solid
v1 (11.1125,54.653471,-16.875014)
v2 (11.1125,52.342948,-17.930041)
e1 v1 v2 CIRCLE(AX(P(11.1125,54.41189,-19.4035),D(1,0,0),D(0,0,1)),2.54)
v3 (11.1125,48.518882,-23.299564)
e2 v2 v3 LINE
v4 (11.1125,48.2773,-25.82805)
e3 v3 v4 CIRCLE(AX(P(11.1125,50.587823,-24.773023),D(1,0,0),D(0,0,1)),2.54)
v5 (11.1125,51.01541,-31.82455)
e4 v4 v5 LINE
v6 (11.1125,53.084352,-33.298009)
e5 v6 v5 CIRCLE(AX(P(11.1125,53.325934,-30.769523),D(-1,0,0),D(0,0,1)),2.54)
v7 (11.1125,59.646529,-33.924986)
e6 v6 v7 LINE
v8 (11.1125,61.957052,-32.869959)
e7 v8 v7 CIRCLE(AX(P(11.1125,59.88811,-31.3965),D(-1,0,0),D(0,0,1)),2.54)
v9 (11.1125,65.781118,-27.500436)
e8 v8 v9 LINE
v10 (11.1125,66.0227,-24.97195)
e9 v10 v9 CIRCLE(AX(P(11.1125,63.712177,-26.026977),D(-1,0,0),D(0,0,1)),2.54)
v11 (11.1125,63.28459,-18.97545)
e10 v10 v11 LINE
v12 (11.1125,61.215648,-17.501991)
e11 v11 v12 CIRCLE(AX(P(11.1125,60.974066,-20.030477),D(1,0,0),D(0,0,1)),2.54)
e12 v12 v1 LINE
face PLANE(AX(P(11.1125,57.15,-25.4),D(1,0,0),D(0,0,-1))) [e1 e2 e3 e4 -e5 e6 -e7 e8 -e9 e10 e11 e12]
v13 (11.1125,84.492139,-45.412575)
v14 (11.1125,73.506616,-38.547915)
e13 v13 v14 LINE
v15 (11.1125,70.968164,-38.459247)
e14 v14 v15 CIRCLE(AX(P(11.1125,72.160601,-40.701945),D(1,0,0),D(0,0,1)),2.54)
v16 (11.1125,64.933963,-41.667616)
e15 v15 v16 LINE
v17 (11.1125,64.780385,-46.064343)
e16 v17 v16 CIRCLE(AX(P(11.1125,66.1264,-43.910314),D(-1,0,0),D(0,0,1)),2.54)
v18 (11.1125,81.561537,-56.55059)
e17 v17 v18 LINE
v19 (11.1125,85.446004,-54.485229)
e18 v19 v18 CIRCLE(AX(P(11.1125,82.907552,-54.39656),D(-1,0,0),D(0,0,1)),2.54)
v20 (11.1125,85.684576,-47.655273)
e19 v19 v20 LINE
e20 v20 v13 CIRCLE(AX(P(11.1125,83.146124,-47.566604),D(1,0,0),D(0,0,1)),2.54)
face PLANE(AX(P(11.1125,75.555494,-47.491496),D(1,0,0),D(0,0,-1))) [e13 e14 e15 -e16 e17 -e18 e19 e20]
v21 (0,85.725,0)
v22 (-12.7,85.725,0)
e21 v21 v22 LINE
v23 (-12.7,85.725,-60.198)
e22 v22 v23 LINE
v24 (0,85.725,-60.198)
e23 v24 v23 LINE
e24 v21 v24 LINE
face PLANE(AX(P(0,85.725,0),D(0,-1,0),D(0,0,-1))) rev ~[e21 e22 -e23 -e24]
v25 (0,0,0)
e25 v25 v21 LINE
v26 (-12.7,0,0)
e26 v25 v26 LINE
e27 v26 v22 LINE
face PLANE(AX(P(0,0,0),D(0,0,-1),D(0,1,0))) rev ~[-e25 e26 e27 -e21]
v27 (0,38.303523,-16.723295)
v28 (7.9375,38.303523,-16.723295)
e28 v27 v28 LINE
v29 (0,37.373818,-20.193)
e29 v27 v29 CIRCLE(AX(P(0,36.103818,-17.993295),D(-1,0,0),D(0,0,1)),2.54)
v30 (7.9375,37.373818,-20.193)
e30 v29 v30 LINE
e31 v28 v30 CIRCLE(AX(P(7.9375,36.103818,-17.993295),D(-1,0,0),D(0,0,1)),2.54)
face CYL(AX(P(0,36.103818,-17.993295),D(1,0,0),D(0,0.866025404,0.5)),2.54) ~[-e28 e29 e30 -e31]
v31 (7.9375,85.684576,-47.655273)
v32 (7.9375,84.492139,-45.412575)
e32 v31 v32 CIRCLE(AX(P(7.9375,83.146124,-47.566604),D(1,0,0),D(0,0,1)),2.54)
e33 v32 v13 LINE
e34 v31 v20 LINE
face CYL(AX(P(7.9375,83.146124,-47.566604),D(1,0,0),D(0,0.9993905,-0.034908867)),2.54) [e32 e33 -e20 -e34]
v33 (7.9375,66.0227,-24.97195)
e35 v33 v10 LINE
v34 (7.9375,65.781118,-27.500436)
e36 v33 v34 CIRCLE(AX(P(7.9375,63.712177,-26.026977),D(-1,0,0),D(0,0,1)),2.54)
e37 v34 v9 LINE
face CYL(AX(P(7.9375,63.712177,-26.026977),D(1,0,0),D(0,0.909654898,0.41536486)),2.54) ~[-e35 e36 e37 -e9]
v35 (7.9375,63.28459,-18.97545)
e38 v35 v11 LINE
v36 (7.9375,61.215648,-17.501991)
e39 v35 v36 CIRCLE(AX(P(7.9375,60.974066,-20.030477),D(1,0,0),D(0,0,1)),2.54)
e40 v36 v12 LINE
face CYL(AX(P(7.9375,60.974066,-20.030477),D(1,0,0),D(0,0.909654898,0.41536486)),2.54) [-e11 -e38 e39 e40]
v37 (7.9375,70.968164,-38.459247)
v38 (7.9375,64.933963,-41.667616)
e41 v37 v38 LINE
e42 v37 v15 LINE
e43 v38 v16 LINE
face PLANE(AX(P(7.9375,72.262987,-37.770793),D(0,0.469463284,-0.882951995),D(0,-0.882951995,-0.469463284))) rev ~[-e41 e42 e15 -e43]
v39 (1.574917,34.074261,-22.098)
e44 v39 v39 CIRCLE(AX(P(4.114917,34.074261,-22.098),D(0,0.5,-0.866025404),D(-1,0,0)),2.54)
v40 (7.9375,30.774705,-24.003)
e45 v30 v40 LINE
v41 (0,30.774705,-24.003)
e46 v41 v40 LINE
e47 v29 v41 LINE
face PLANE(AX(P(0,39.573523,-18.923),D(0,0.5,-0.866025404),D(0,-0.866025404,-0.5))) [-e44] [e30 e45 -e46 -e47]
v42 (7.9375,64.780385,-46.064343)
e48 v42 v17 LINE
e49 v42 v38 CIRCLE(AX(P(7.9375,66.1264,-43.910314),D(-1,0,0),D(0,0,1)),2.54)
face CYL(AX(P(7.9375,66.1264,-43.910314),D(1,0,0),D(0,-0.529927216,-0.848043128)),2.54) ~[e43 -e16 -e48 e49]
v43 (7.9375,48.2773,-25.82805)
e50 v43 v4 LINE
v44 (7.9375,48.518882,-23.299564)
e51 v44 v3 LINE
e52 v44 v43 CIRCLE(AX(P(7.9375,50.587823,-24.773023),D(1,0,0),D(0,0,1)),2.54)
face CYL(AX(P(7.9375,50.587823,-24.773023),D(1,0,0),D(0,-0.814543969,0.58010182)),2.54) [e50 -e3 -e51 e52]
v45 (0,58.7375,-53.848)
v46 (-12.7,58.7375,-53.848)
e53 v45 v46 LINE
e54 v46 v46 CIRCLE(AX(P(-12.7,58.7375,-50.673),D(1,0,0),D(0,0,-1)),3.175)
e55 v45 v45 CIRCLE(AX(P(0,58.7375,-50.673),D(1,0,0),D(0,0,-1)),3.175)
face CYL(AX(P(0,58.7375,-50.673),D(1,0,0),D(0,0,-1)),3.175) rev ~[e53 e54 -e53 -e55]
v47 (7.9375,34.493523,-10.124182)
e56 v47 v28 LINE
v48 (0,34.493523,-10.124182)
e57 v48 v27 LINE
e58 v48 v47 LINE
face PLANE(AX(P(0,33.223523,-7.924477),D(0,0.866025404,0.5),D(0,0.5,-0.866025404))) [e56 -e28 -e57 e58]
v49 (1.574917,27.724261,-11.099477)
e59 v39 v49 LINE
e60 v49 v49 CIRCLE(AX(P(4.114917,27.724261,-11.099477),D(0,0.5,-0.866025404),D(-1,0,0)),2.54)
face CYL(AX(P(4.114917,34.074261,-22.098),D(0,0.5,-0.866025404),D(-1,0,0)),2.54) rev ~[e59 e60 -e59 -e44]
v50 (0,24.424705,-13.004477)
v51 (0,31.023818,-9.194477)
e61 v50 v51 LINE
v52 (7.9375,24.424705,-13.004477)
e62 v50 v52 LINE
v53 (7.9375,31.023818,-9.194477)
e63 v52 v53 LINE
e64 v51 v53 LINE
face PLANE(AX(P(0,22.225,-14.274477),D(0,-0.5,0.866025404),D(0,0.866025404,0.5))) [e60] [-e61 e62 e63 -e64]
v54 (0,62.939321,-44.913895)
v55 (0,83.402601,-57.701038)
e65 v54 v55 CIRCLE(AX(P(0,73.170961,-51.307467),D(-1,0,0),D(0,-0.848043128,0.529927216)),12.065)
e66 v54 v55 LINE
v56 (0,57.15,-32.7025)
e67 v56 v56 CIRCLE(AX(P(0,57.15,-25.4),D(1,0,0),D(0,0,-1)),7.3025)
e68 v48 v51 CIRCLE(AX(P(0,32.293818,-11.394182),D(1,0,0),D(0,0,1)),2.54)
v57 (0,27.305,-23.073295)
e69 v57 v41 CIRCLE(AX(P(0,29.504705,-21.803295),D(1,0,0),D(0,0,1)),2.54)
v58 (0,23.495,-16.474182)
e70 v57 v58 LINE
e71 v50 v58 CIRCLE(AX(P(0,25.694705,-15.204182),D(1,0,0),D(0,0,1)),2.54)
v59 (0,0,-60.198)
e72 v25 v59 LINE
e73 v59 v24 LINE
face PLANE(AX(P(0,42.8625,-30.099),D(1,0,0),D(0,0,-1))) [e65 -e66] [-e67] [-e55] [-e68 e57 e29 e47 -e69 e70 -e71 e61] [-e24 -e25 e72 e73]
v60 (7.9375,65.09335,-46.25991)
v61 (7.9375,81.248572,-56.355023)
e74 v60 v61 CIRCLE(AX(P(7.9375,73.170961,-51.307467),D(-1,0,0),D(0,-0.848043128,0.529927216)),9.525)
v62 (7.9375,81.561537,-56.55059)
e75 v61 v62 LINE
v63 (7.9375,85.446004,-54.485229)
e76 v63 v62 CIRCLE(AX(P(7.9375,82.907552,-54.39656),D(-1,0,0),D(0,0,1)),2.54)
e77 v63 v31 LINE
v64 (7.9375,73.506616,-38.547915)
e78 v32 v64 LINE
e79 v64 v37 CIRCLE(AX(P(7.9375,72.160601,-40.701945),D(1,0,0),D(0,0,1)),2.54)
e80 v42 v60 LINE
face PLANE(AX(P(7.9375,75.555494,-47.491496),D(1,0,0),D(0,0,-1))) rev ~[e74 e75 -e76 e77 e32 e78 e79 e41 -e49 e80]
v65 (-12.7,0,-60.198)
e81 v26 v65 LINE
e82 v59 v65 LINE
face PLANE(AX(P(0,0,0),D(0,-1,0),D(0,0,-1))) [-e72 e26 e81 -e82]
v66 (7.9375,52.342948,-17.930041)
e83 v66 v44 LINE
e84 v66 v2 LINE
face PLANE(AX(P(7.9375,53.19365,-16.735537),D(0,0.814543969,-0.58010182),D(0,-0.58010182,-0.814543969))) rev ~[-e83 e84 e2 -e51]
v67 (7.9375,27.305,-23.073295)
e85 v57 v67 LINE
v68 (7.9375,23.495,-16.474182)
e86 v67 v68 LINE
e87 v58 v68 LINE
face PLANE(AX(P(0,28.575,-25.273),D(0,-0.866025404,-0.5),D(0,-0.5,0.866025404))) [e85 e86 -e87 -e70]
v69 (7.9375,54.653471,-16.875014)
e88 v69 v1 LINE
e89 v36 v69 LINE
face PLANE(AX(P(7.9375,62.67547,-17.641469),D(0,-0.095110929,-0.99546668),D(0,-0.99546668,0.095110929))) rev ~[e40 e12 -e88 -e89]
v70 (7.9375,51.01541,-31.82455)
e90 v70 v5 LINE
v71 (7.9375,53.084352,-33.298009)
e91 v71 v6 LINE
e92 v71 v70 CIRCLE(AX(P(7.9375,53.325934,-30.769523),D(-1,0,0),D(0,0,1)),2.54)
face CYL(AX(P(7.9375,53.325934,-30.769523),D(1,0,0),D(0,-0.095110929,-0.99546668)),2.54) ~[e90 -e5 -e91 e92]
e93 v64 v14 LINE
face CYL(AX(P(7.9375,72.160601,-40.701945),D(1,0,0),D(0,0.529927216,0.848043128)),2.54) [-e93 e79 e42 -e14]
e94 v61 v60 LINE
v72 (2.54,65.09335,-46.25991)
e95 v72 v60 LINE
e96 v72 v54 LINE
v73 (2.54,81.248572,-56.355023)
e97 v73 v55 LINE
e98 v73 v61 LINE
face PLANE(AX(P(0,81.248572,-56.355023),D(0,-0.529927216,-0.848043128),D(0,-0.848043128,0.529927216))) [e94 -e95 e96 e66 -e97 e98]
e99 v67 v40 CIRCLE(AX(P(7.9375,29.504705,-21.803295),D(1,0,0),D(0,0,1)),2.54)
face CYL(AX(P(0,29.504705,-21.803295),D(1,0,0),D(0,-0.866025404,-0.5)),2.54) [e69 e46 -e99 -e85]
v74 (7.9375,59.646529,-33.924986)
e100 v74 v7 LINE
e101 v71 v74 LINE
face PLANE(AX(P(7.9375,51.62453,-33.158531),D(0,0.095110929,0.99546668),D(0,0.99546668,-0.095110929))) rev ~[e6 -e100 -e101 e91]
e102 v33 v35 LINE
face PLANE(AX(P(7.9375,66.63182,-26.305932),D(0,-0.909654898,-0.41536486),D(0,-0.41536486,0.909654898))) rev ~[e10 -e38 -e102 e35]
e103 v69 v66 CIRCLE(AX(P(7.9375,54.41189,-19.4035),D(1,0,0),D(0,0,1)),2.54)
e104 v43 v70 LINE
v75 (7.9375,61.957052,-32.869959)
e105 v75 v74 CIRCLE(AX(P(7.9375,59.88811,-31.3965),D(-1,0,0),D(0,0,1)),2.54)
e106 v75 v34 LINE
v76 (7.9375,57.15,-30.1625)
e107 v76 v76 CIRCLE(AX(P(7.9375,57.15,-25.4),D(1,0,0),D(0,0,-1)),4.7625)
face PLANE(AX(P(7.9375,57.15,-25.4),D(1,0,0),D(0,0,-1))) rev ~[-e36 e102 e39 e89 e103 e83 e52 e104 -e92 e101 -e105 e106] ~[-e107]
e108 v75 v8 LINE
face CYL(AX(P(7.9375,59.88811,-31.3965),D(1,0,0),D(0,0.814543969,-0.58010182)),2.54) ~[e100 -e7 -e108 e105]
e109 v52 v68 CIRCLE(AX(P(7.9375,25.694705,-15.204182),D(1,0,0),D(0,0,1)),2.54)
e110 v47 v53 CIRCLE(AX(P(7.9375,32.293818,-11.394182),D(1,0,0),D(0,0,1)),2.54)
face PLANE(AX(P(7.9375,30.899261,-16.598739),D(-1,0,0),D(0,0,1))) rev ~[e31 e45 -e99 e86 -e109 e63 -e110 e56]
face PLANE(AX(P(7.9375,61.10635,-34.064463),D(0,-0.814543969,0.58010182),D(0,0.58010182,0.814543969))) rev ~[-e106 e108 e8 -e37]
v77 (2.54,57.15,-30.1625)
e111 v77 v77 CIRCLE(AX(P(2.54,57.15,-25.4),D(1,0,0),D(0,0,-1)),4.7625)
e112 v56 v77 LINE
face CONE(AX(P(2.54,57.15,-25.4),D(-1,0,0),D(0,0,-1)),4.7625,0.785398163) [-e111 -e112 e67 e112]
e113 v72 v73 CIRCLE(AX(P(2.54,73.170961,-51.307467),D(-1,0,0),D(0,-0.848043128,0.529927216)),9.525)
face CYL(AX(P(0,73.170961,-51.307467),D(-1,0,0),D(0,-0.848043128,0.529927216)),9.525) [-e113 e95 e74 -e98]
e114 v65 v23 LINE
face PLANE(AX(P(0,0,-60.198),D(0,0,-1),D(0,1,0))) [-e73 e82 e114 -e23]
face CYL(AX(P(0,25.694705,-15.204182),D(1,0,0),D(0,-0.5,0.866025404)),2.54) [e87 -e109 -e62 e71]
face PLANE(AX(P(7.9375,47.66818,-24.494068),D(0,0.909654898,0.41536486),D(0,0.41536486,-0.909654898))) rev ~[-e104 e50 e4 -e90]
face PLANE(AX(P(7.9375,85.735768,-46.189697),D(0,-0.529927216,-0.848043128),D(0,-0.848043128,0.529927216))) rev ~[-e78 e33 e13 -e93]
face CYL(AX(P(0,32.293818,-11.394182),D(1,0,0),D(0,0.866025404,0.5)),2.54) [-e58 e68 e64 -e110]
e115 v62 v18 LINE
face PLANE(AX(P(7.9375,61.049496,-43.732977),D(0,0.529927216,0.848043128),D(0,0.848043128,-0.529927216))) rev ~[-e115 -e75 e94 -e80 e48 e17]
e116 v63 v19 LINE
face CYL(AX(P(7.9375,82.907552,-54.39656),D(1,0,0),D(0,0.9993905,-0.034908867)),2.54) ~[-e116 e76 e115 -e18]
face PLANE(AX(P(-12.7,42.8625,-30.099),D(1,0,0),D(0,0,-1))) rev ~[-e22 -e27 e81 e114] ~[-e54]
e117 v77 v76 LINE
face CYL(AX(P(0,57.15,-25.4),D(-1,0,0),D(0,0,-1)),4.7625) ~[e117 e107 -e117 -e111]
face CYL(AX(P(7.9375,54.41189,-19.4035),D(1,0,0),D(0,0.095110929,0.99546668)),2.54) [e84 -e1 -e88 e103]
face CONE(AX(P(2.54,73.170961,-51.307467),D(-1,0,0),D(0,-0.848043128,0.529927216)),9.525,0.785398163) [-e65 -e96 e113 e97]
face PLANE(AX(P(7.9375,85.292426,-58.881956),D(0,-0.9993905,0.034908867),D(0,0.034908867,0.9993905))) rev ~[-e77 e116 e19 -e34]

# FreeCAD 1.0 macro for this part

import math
import FreeCAD as App
import Part
import Sketcher
Q = App.Units.Quantity


def edges_at(feature, points):
    """Names of the edges that pass closest to the given points."""
    edges = feature.Shape.Edges
    near = lambda p: min(range(len(edges)), key=lambda i: edges[i].distToShape(Part.Vertex(*p))[0])
    return sorted({f"Edge{near(p) + 1}" for p in points})

doc = App.newDocument("Part")
body = doc.addObject("PartDesign::Body", "Body")

sketch1 = body.newObject("Sketcher::SketchObject", "Sketch")
sketch1.AttachmentSupport = (doc.getObject("YZ_Plane"), [""])
sketch1.MapMode = "FlatFace"
sketch1.addGeometry([
    Part.LineSegment(App.Vector(85.7, 0, 0), App.Vector(0, 0, 0)),
    Part.LineSegment(App.Vector(0, 0, 0), App.Vector(0, -60.2, 0)),
    Part.LineSegment(App.Vector(0, -60.2, 0), App.Vector(85.7, -60.2, 0)),
    Part.LineSegment(App.Vector(85.7, -60.2, 0), App.Vector(85.7, 0, 0)),
    Part.Circle(App.Vector(58.7, -50.7, 0), App.Vector(0, 0, 1), 3.2),
], False)
sketch1.addConstraint([
    Sketcher.Constraint("Coincident", 0, 2, 1, 1),
    Sketcher.Constraint("Coincident", 1, 2, 2, 1),
    Sketcher.Constraint("Coincident", 2, 2, 3, 1),
    Sketcher.Constraint("Coincident", 3, 2, 0, 1),
    Sketcher.Constraint("Horizontal", 0),
    Sketcher.Constraint("Vertical", 1),
    Sketcher.Constraint("Horizontal", 2),
    Sketcher.Constraint("Vertical", 3),
    Sketcher.Constraint("Coincident", 0, 2, -1, 1),
    Sketcher.Constraint("Diameter", 4, Q("0.25 in")),
    Sketcher.Constraint("DistanceY", 1, 2, 1, 1, Q("2.37 in")),
    Sketcher.Constraint("DistanceX", 0, 2, 0, 1, Q("3.375 in")),
    Sketcher.Constraint("DistanceX", -1, 1, 4, 3, Q("2.3125 in")),
    Sketcher.Constraint("DistanceY", 4, 3, -1, 1, Q("1.995 in")),
])
pad1 = body.newObject("PartDesign::Pad", "Pad")
pad1.Profile = sketch1
pad1.Length = Q("0.5 in")
pad1.Reversed = True

sketch2 = body.newObject("Sketcher::SketchObject", "Sketch001")
sketch2.AttachmentSupport = (doc.getObject("YZ_Plane"), [""])
sketch2.MapMode = "FlatFace"
sketch2.addGeometry([
    Part.Circle(App.Vector(57.1, -25.4, 0), App.Vector(0, 0, 1), 4.8),
    Part.LineSegment(App.Vector(28.6, -25.3, 0), App.Vector(39.6, -18.9, 0)),
    Part.LineSegment(App.Vector(39.6, -18.9, 0), App.Vector(33.2, -7.9, 0)),
    Part.LineSegment(App.Vector(33.2, -7.9, 0), App.Vector(22.2, -14.3, 0)),
    Part.LineSegment(App.Vector(22.2, -14.3, 0), App.Vector(28.6, -25.3, 0)),
    Part.LineSegment(App.Vector(65.1, -46.3, 0), App.Vector(81.2, -56.4, 0)),
    Part.ArcOfCircle(Part.Circle(App.Vector(73.2, -51.3, 0), App.Vector(0, 0, 1), 9.5), math.radians(-32), math.radians(148)),
], False)
sketch2.addConstraint([
    Sketcher.Constraint("Coincident", 1, 2, 2, 1),
    Sketcher.Constraint("Coincident", 2, 2, 3, 1),
    Sketcher.Constraint("Coincident", 3, 2, 4, 1),
    Sketcher.Constraint("Coincident", 4, 2, 1, 1),
    Sketcher.Constraint("Coincident", 5, 1, 6, 2),
    Sketcher.Constraint("Coincident", 6, 1, 5, 2),
    Sketcher.Constraint("Perpendicular", 1, 2),
    Sketcher.Constraint("Perpendicular", 2, 3),
    Sketcher.Constraint("Perpendicular", 3, 4),
    Sketcher.Constraint("Equal", 1, 2),
    Sketcher.Constraint("Diameter", 0, Q("0.375 in")),
    Sketcher.Constraint("DistanceY", 0, 3, -1, 1, Q("1 in")),
    Sketcher.Constraint("Angle", 1, Q("30 deg")),
    Sketcher.Constraint("Radius", 6, Q("0.375 in")),
    Sketcher.Constraint("Distance", 1, Q("0.5 in")),
    Sketcher.Constraint("DistanceX", -1, 1, 0, 3, Q("2.25 in")),
    Sketcher.Constraint("DistanceY", 1, 2, -1, 1, Q("0.745 in")),
    Sketcher.Constraint("DistanceX", -1, 1, 3, 2, Q("0.875 in")),
    Sketcher.Constraint("DistanceX", -1, 1, 6, 3, Q("73.170961 mm")),
    Sketcher.Constraint("DistanceX", -1, 1, 5, 1, Q("65.09335 mm")),
    Sketcher.Constraint("DistanceY", 5, 1, -1, 1, Q("46.25991 mm")),
    Sketcher.Constraint("DistanceX", -1, 1, 6, 1, Q("81.248572 mm")),
])
pad2 = body.newObject("PartDesign::Pad", "Pad001")
pad2.Profile = sketch2
pad2.Length = Q("0.3125 in")

sketch3 = body.newObject("Sketcher::SketchObject", "Sketch002")
sketch3.AttachmentSupport = (doc.getObject("YZ_Plane"), [""])
sketch3.MapMode = "FlatFace"
sketch3.AttachmentOffset = App.Placement(App.Vector(0, 0, 0.3125 * 25.4), App.Rotation())
sketch3.addGeometry([
    Part.LineSegment(App.Vector(67, -26, 0), App.Vector(63, -18, 0)),
    Part.LineSegment(App.Vector(63, -18, 0), App.Vector(53, -17, 0)),
    Part.LineSegment(App.Vector(53, -17, 0), App.Vector(48, -24, 0)),
    Part.LineSegment(App.Vector(48, -24, 0), App.Vector(52, -33, 0)),
    Part.LineSegment(App.Vector(52, -33, 0), App.Vector(61, -34, 0)),
    Part.LineSegment(App.Vector(61, -34, 0), App.Vector(67, -26, 0)),
], False)
sketch3.addConstraint([
    Sketcher.Constraint("Coincident", 0, 2, 1, 1),
    Sketcher.Constraint("Coincident", 1, 2, 2, 1),
    Sketcher.Constraint("Coincident", 2, 2, 3, 1),
    Sketcher.Constraint("Coincident", 3, 2, 4, 1),
    Sketcher.Constraint("Coincident", 4, 2, 5, 1),
    Sketcher.Constraint("Coincident", 5, 2, 0, 1),
    Sketcher.Constraint("Parallel", 0, 3),
    Sketcher.Constraint("Parallel", 1, 4),
    Sketcher.Constraint("Parallel", 2, 5),
    Sketcher.Constraint("Equal", 0, 1),
    Sketcher.Constraint("Equal", 1, 2),
    Sketcher.Constraint("Equal", 2, 3),
    Sketcher.Constraint("Distance", 0, Q("0.375 in")),
    Sketcher.Constraint("DistanceX", -1, 1, 2, 2, Q("1.8767 in")),
    Sketcher.Constraint("DistanceX", -1, 1, 5, 2, Q("2.6233 in")),
    Sketcher.Constraint("DistanceX", 1, 2, 0, 2, Q("0.3733 in")),
    Sketcher.Constraint("DistanceY", 2, 2, 0, 2, Q("6.8526 mm")),
    Sketcher.Constraint("DistanceY", 0, 2, -1, 1, Q("17.641469 mm")),
])
pad3 = body.newObject("PartDesign::Pad", "Pad002")
pad3.Profile = sketch3
pad3.Length = Q("0.125 in")

sketch4 = body.newObject("Sketcher::SketchObject", "Sketch003")
sketch4.AttachmentSupport = (doc.getObject("YZ_Plane"), [""])
sketch4.MapMode = "FlatFace"
sketch4.AttachmentOffset = App.Placement(App.Vector(0, 0, 0.3125 * 25.4), App.Rotation())
sketch4.addGeometry([
    Part.LineSegment(App.Vector(85, -59, 0), App.Vector(86, -46, 0)),
    Part.LineSegment(App.Vector(86, -46, 0), App.Vector(72, -38, 0)),
    Part.LineSegment(App.Vector(72, -38, 0), App.Vector(61, -44, 0)),
    Part.LineSegment(App.Vector(61, -44, 0), App.Vector(85, -59, 0)),
], False)
sketch4.addConstraint([
    Sketcher.Constraint("Coincident", 0, 2, 1, 1),
    Sketcher.Constraint("Coincident", 1, 2, 2, 1),
    Sketcher.Constraint("Coincident", 2, 2, 3, 1),
    Sketcher.Constraint("Coincident", 3, 2, 0, 1),
    Sketcher.Constraint("Parallel", 1, 3),
    Sketcher.Constraint("Equal", 0, 2),
    Sketcher.Constraint("Distance", 0, Q("0.5 in")),
    Sketcher.Constraint("DistanceX", -1, 1, 0, 2, Q("85.735768 mm")),
    Sketcher.Constraint("DistanceX", 1, 2, 0, 2, Q("13.472782 mm")),
    Sketcher.Constraint("DistanceX", 2, 2, 1, 2, Q("11.21349 mm")),
    Sketcher.Constraint("DistanceY", 0, 2, 2, 2, Q("2.45672 mm")),
    Sketcher.Constraint("DistanceY", 0, 2, -1, 1, Q("46.189697 mm")),
])
pad4 = body.newObject("PartDesign::Pad", "Pad003")
pad4.Profile = sketch4
pad4.Length = Q("0.125 in")
doc.recompute()

fillet = body.newObject("PartDesign::Fillet", "Fillet")
fillet.Base = (pad4, edges_at(pad4, [
    (3.969, 39.574, -18.923),
    (3.969, 33.224, -7.924),
    (3.969, 22.225, -14.274),
    (3.969, 28.575, -25.273),
    (9.525, 61.106, -34.064),
    (9.525, 66.632, -26.306),
    (9.525, 62.675, -17.641),
    (9.525, 53.194, -16.736),
    (9.525, 47.668, -24.494),
    (9.525, 51.625, -33.159),
    (9.525, 61.049, -43.733),
    (9.525, 85.292, -58.882),
    (9.525, 85.736, -46.19),
    (9.525, 72.263, -37.771),
]))
fillet.Radius = Q("0.1 in")
doc.recompute()

chamfer = body.newObject("PartDesign::Chamfer", "Chamfer")
chamfer.Base = (fillet, edges_at(fillet, [(0, 57.15, -20.637), (0, 78.219, -43.23)]))
chamfer.Size = Q("0.1 in")

sketch5 = body.newObject("Sketcher::SketchObject", "Sketch004")
sketch5.Placement = App.Placement(App.Vector(0, 18.08728, -31.328088), App.Rotation(App.Vector(-1, 0, 0), App.Vector(0, 0.866025404, 0.5), App.Vector(0, 0.5, -0.866025404), "ZXY"))
sketch5.addGeometry(Part.Circle(App.Vector(-4.1, 18.5, 0), App.Vector(0, 0, 1), 2.5), False)
sketch5.addConstraint([
    Sketcher.Constraint("Diameter", 0, Q("0.2 in")),
    Sketcher.Constraint("DistanceX", 0, 3, -1, 1, Q("4.114917 mm")),
    Sketcher.Constraint("DistanceY", -1, 1, 0, 3, Q("18.460176 mm")),
])
pocket1 = body.newObject("PartDesign::Pocket", "Pocket")
pocket1.Profile = sketch5
pocket1.Length = Q("0.5 in")

doc.recompute()
